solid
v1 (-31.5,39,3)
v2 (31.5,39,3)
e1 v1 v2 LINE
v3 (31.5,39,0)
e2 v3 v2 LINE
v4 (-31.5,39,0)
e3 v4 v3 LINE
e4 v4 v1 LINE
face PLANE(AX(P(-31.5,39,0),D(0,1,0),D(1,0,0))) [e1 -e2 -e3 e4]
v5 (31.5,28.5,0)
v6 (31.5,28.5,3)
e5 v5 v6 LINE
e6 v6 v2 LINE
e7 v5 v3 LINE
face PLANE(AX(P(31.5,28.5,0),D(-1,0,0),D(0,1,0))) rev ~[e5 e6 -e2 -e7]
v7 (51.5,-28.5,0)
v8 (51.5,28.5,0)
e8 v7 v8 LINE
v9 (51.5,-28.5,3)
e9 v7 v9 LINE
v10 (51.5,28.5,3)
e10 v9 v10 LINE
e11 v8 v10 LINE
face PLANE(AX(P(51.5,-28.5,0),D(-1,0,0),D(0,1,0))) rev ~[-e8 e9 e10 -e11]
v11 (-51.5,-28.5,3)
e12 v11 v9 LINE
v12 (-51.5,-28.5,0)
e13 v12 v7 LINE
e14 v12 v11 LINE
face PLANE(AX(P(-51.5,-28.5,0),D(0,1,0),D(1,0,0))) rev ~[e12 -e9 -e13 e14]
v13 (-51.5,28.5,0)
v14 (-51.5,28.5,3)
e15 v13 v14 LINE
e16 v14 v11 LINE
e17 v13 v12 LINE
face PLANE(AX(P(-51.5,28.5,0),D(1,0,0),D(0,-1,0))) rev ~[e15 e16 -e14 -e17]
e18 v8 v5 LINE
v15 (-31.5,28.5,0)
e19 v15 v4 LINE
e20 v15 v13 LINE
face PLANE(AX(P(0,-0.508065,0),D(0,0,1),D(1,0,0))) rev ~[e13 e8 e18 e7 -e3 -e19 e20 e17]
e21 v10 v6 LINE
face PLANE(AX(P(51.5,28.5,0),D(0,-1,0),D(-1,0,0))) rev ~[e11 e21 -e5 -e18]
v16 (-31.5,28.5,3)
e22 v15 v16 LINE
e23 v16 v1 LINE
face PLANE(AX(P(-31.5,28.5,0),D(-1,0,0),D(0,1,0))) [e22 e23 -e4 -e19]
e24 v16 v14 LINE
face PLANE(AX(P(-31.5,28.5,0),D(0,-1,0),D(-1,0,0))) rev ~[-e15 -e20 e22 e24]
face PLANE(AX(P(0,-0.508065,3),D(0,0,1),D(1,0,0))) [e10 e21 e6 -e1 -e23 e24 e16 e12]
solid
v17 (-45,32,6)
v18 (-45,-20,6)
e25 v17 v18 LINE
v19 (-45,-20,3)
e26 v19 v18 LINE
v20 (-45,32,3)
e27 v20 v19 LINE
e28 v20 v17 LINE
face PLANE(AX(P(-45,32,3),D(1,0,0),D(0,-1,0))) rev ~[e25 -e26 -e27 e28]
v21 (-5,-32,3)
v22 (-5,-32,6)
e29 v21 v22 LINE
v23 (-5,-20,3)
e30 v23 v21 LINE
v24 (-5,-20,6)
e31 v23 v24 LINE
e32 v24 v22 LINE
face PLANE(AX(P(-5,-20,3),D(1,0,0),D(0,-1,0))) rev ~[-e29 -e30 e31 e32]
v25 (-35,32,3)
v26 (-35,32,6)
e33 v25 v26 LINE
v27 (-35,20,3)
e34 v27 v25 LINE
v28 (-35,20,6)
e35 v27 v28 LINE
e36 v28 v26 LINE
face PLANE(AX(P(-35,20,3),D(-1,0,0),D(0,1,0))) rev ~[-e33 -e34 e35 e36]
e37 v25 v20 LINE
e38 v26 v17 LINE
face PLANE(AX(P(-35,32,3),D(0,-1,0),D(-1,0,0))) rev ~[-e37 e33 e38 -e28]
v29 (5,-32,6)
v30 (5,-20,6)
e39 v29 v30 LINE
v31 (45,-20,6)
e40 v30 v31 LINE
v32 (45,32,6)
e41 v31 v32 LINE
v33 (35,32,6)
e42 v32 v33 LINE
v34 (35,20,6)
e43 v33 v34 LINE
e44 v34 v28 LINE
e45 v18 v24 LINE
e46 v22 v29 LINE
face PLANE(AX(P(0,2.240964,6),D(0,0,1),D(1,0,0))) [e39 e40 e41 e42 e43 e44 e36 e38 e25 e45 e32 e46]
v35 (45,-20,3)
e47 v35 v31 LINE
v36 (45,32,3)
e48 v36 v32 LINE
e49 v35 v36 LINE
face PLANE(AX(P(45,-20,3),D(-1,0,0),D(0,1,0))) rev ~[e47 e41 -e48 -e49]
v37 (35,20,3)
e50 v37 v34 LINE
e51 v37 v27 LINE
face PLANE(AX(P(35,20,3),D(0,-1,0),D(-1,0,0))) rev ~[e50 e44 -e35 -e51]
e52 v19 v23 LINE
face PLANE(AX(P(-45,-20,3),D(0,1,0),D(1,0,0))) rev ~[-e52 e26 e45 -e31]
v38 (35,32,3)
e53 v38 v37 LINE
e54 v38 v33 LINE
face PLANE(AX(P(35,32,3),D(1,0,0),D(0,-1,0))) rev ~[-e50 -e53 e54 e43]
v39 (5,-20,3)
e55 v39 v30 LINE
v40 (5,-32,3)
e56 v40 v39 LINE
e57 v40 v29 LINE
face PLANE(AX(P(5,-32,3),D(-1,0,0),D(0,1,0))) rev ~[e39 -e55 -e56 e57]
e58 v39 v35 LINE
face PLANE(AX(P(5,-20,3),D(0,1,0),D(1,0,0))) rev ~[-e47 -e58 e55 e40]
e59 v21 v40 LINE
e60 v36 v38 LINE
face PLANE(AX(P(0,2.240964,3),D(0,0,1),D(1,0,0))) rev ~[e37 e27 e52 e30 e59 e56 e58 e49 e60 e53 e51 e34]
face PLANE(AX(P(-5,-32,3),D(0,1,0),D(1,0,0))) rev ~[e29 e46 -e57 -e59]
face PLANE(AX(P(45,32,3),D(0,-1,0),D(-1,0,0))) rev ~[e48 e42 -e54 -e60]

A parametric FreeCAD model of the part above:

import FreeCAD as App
import Part
import Sketcher
Q = App.Units.Quantity

doc = App.newDocument("Part")
body = doc.addObject("PartDesign::Body", "Body")

# Sketch on XY plane
sketch1 = body.newObject("Sketcher::SketchObject", "Sketch")
sketch1.AttachmentSupport = (doc.getObject("XY_Plane"), [""])
sketch1.MapMode = "FlatFace"
sketch1.addGeometry(Part.LineSegment(App.Vector(51.5, -28.5, 0), App.Vector(51.5, 28.5, 0)), False)
sketch1.addGeometry(Part.LineSegment(App.Vector(51.5, 28.5, 0), App.Vector(31.5, 28.5, 0)), False)
sketch1.addGeometry(Part.LineSegment(App.Vector(31.5, 28.5, 0), App.Vector(31.5, 39, 0)), False)
sketch1.addGeometry(Part.LineSegment(App.Vector(31.5, 39, 0), App.Vector(-31.5, 39, 0)), False)
sketch1.addGeometry(Part.LineSegment(App.Vector(-31.5, 39, 0), App.Vector(-31.5, 28.5, 0)), False)
sketch1.addGeometry(Part.LineSegment(App.Vector(-31.5, 28.5, 0), App.Vector(-51.5, 28.5, 0)), False)
sketch1.addGeometry(Part.LineSegment(App.Vector(-51.5, 28.5, 0), App.Vector(-51.5, -28.5, 0)), False)
sketch1.addGeometry(Part.LineSegment(App.Vector(-51.5, -28.5, 0), App.Vector(51.5, -28.5, 0)), False)
sketch1.addConstraint(Sketcher.Constraint("Coincident", 0, 2, 1, 1))
sketch1.addConstraint(Sketcher.Constraint("Coincident", 1, 2, 2, 1))
sketch1.addConstraint(Sketcher.Constraint("Coincident", 2, 2, 3, 1))
sketch1.addConstraint(Sketcher.Constraint("Coincident", 3, 2, 4, 1))
sketch1.addConstraint(Sketcher.Constraint("Coincident", 4, 2, 5, 1))
sketch1.addConstraint(Sketcher.Constraint("Coincident", 5, 2, 6, 1))
sketch1.addConstraint(Sketcher.Constraint("Coincident", 6, 2, 7, 1))
sketch1.addConstraint(Sketcher.Constraint("Coincident", 7, 2, 0, 1))
sketch1.addConstraint(Sketcher.Constraint("Vertical", 0))
sketch1.addConstraint(Sketcher.Constraint("Horizontal", 1))
sketch1.addConstraint(Sketcher.Constraint("Vertical", 2))
sketch1.addConstraint(Sketcher.Constraint("Horizontal", 3))
sketch1.addConstraint(Sketcher.Constraint("Vertical", 4))
sketch1.addConstraint(Sketcher.Constraint("Horizontal", 5))
sketch1.addConstraint(Sketcher.Constraint("Vertical", 6))
sketch1.addConstraint(Sketcher.Constraint("Horizontal", 7))
sketch1.addConstraint(Sketcher.Constraint("Symmetric", 0, 2, 6, 2, -1, 1))
sketch1.addConstraint(Sketcher.Constraint("Symmetric", 1, 2, 4, 2, -2))
sketch1.addConstraint(Sketcher.Constraint("DistanceX", 1, 2, 1, 1, Q("20 mm")))
sketch1.addConstraint(Sketcher.Constraint("DistanceX", 3, 2, 3, 1, Q("63 mm")))
sketch1.addConstraint(Sketcher.Constraint("DistanceY", 0, 1, 0, 2, Q("57 mm")))
sketch1.addConstraint(Sketcher.Constraint("DistanceY", 2, 1, 2, 2, Q("10.5 mm")))
pad1 = body.newObject("PartDesign::Pad", "Pad")
pad1.Profile = sketch1
pad1.Length = 3
body2 = doc.addObject("PartDesign::Body", "Body001")

# Sketch on XY plane
sketch2 = body2.newObject("Sketcher::SketchObject", "Sketch001")
sketch2.AttachmentSupport = (doc.getObject("XY_Plane001"), [""])
sketch2.MapMode = "FlatFace"
sketch2.AttachmentOffset = App.Placement(App.Vector(0, 0, 3), App.Rotation())
sketch2.addGeometry(Part.LineSegment(App.Vector(35, 32, 0), App.Vector(35, 20, 0)), False)
sketch2.addGeometry(Part.LineSegment(App.Vector(35, 20, 0), App.Vector(-35, 20, 0)), False)
sketch2.addGeometry(Part.LineSegment(App.Vector(-35, 20, 0), App.Vector(-35, 32, 0)), False)
sketch2.addGeometry(Part.LineSegment(App.Vector(-35, 32, 0), App.Vector(-45, 32, 0)), False)
sketch2.addGeometry(Part.LineSegment(App.Vector(-45, 32, 0), App.Vector(-45, -20, 0)), False)
sketch2.addGeometry(Part.LineSegment(App.Vector(-45, -20, 0), App.Vector(-5, -20, 0)), False)
sketch2.addGeometry(Part.LineSegment(App.Vector(-5, -20, 0), App.Vector(-5, -32, 0)), False)
sketch2.addGeometry(Part.LineSegment(App.Vector(-5, -32, 0), App.Vector(5, -32, 0)), False)
sketch2.addGeometry(Part.LineSegment(App.Vector(5, -32, 0), App.Vector(5, -20, 0)), False)
sketch2.addGeometry(Part.LineSegment(App.Vector(5, -20, 0), App.Vector(45, -20, 0)), False)
sketch2.addGeometry(Part.LineSegment(App.Vector(45, -20, 0), App.Vector(45, 32, 0)), False)
sketch2.addGeometry(Part.LineSegment(App.Vector(45, 32, 0), App.Vector(35, 32, 0)), False)
sketch2.addConstraint(Sketcher.Constraint("Coincident", 0, 2, 1, 1))
sketch2.addConstraint(Sketcher.Constraint("Coincident", 1, 2, 2, 1))
sketch2.addConstraint(Sketcher.Constraint("Coincident", 2, 2, 3, 1))
sketch2.addConstraint(Sketcher.Constraint("Coincident", 3, 2, 4, 1))
sketch2.addConstraint(Sketcher.Constraint("Coincident", 4, 2, 5, 1))
sketch2.addConstraint(Sketcher.Constraint("Coincident", 5, 2, 6, 1))
sketch2.addConstraint(Sketcher.Constraint("Coincident", 6, 2, 7, 1))
sketch2.addConstraint(Sketcher.Constraint("Coincident", 7, 2, 8, 1))
sketch2.addConstraint(Sketcher.Constraint("Coincident", 8, 2, 9, 1))
sketch2.addConstraint(Sketcher.Constraint("Coincident", 9, 2, 10, 1))
sketch2.addConstraint(Sketcher.Constraint("Coincident", 10, 2, 11, 1))
sketch2.addConstraint(Sketcher.Constraint("Coincident", 11, 2, 0, 1))
sketch2.addConstraint(Sketcher.Constraint("Vertical", 0))
sketch2.addConstraint(Sketcher.Constraint("Horizontal", 1))
sketch2.addConstraint(Sketcher.Constraint("Vertical", 2))
sketch2.addConstraint(Sketcher.Constraint("Horizontal", 3))
sketch2.addConstraint(Sketcher.Constraint("Vertical", 4))
sketch2.addConstraint(Sketcher.Constraint("Horizontal", 5))
sketch2.addConstraint(Sketcher.Constraint("Vertical", 6))
sketch2.addConstraint(Sketcher.Constraint("Horizontal", 7))
sketch2.addConstraint(Sketcher.Constraint("Vertical", 8))
sketch2.addConstraint(Sketcher.Constraint("Horizontal", 9))
sketch2.addConstraint(Sketcher.Constraint("Vertical", 10))
sketch2.addConstraint(Sketcher.Constraint("Horizontal", 11))
sketch2.addConstraint(Sketcher.Constraint("Symmetric", 5, 2, 8, 2, -2))
sketch2.addConstraint(Sketcher.Constraint("Symmetric", 3, 2, 10, 2, -2))
sketch2.addConstraint(Sketcher.Constraint("Equal", 3, 7))
sketch2.addConstraint(Sketcher.Constraint("Equal", 7, 11))
sketch2.addConstraint(Sketcher.Constraint("Equal", 2, 6))
sketch2.addConstraint(Sketcher.Constraint("DistanceX", 1, 2, 1, 1, Q("70 mm")))
sketch2.addConstraint(Sketcher.Constraint("DistanceX", 3, 2, 3, 1, Q("10 mm")))
sketch2.addConstraint(Sketcher.Constraint("DistanceY", 0, 2, 0, 1, Q("12 mm")))
sketch2.addConstraint(Sketcher.Constraint("DistanceY", 4, 2, 4, 1, Q("52 mm")))
sketch2.addConstraint(Sketcher.Constraint("DistanceY", -1, 1, 0, 2, Q("20 mm")))
pad2 = body2.newObject("PartDesign::Pad", "Pad001")
pad2.Profile = sketch2
pad2.Length = 3

doc.recompute()
